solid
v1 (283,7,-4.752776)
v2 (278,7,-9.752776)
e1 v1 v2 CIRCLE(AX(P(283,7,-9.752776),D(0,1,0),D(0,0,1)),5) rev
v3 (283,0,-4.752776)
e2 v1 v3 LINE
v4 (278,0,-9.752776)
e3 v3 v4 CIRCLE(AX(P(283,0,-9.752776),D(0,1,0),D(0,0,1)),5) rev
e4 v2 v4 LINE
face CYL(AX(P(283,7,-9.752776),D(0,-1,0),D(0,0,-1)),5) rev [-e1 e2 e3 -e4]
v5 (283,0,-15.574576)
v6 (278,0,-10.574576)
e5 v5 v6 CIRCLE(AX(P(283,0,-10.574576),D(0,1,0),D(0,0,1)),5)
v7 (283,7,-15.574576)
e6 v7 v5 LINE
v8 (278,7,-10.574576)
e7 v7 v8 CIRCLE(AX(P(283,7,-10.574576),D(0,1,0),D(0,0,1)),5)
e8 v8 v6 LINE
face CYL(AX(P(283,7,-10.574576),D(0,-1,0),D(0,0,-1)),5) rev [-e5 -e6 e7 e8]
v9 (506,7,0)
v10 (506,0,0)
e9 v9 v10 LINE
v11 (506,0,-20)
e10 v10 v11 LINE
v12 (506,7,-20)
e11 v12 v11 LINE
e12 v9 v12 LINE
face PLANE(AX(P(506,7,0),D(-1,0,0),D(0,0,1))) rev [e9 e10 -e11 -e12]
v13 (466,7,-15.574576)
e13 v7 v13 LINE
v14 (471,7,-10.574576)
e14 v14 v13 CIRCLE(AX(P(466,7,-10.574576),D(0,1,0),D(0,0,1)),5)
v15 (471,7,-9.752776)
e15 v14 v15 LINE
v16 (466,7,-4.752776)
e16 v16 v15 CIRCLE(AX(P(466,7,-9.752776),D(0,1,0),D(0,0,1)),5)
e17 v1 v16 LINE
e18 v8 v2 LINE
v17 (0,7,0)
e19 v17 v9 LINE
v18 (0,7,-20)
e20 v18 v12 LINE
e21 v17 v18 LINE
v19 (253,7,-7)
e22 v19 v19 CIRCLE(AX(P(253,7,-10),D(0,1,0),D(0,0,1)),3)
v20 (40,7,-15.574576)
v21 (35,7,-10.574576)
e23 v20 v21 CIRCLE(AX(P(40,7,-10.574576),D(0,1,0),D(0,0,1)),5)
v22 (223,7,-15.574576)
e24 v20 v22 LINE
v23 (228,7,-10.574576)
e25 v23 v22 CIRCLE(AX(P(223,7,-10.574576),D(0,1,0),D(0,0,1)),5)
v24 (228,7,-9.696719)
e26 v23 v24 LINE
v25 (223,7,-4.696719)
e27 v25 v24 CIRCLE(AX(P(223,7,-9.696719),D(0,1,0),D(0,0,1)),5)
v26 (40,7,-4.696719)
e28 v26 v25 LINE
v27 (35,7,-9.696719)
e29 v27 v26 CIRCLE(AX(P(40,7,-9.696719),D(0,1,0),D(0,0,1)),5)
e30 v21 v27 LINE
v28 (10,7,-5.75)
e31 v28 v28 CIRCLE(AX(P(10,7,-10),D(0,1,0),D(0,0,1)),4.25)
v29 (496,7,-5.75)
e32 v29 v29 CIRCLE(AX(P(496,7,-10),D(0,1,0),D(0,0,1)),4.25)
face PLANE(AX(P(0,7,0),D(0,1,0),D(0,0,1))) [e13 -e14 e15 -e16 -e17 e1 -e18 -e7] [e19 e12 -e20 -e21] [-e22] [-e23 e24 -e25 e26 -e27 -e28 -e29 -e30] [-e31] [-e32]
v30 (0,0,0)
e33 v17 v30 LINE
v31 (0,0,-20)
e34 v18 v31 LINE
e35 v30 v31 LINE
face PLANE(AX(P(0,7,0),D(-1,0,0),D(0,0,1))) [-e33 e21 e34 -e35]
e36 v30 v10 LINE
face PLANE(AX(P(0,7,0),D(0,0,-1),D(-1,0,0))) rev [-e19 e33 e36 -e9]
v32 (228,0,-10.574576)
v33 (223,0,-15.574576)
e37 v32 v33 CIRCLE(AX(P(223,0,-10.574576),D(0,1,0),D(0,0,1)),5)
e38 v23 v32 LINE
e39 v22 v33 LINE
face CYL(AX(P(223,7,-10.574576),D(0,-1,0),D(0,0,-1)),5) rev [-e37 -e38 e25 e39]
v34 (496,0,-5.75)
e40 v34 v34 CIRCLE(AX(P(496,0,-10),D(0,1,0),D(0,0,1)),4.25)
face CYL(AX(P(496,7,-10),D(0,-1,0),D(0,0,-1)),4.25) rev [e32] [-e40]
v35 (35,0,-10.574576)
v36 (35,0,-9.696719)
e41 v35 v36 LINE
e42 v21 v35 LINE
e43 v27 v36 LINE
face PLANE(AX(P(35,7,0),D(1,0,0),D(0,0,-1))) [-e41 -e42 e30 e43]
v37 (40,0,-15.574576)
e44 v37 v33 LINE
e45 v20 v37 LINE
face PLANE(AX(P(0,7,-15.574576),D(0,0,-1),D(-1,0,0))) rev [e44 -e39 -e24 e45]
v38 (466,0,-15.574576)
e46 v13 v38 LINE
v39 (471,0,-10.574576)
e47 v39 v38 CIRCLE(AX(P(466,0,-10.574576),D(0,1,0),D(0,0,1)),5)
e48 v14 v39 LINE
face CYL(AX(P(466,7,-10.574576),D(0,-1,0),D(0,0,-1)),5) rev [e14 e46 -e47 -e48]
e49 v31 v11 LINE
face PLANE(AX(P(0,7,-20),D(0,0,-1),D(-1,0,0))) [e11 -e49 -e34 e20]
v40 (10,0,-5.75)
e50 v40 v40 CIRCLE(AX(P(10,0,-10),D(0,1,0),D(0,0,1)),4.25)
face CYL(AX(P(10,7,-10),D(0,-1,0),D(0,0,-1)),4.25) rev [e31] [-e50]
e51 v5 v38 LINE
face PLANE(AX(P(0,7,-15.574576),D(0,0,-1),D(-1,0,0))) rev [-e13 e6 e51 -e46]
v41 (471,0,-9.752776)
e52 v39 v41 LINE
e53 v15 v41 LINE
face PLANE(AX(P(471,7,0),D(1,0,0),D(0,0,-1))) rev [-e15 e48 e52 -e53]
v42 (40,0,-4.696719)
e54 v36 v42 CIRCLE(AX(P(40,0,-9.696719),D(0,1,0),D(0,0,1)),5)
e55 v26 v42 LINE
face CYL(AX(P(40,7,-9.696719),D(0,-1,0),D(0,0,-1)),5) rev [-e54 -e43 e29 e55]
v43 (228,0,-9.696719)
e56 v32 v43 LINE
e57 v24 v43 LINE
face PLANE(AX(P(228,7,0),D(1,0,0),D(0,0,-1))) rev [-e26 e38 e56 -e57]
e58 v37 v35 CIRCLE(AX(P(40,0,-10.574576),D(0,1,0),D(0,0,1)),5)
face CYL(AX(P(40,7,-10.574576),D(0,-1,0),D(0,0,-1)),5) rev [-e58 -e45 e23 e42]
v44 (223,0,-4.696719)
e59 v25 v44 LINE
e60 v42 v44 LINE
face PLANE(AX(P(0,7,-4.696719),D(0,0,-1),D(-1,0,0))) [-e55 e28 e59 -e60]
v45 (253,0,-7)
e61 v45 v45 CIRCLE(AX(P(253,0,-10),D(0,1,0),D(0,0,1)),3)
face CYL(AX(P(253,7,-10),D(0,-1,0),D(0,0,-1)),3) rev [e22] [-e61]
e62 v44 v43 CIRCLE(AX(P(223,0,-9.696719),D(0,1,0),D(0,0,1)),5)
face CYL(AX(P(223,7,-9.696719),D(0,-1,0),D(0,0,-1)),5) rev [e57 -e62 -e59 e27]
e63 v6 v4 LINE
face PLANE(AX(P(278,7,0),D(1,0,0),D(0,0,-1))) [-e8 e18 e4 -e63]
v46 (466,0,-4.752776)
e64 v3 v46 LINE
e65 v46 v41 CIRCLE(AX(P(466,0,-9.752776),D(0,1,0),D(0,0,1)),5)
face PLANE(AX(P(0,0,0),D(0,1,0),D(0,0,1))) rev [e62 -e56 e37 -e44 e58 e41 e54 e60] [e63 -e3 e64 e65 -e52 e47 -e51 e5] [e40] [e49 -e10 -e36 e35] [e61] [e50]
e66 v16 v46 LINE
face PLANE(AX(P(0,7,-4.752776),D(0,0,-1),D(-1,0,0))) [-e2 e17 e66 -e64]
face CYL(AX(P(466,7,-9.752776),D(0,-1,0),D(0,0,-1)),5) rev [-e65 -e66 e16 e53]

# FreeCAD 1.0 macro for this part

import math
import FreeCAD as App
import Part
import Sketcher

V = App.Vector
Q = App.Units.Quantity


def add_polygon(sketch, points):
    """Adds a closed chain of lines whose ends are joined by coincident constraints."""
    first, n = sketch.GeometryCount, len(points)
    for a, b in zip(points, points[1:] + points[:1]):
        sketch.addGeometry(Part.LineSegment(App.Vector(*a, 0), App.Vector(*b, 0)), False)
    for i in range(n):
        sketch.addConstraint(Sketcher.Constraint("Coincident", first + i, 2, first + (i + 1) % n, 1))

doc = App.newDocument("Part")
body = doc.addObject("PartDesign::Body", "Body")

# Sketch on XZ plane
sketch1 = doc.addObject("Sketcher::SketchObject", "Sketch")
body.addObject(sketch1)
sketch1.AttachmentSupport = (doc.XZ_Plane, [""])
sketch1.MapMode = "FlatFace"
add_polygon(sketch1, [(0, -20), (0, 0), (506, 0), (506, -20)])  # lines 0-3
sketch1.addGeometry(Part.Circle(V(10, -10, 0), V(0, 0, 1), 4.2), False)  # 4
sketch1.addGeometry(Part.ArcOfCircle(Part.Circle(V(40, -10.6, 0), V(0, 0, 1), 5), math.radians(180), math.radians(270)), False)  # 5
sketch1.addGeometry(Part.LineSegment(V(40, -15.6, 0), V(223, -15.6, 0)), False)  # 6
sketch1.addGeometry(Part.ArcOfCircle(Part.Circle(V(223, -10.6, 0), V(0, 0, 1), 5), math.radians(-90), math.radians(0)), False)  # 7
sketch1.addGeometry(Part.LineSegment(V(228, -10.6, 0), V(228, -9.7, 0)), False)  # 8
sketch1.addGeometry(Part.ArcOfCircle(Part.Circle(V(223, -9.7, 0), V(0, 0, 1), 5), math.radians(0), math.radians(90)), False)  # 9
sketch1.addGeometry(Part.LineSegment(V(223, -4.7, 0), V(40, -4.7, 0)), False)  # 10
sketch1.addGeometry(Part.ArcOfCircle(Part.Circle(V(40, -9.7, 0), V(0, 0, 1), 5), math.radians(90), math.radians(180)), False)  # 11
sketch1.addGeometry(Part.LineSegment(V(35, -9.7, 0), V(35, -10.6, 0)), False)  # 12
sketch1.addGeometry(Part.Circle(V(253, -10, 0), V(0, 0, 1), 3), False)  # 13
sketch1.addGeometry(Part.Circle(V(496, -10, 0), V(0, 0, 1), 4.2), False)  # 14
sketch1.addGeometry(Part.ArcOfCircle(Part.Circle(V(283, -10.6, 0), V(0, 0, 1), 5), math.radians(180), math.radians(270)), False)  # 15
sketch1.addGeometry(Part.LineSegment(V(283, -15.6, 0), V(466, -15.6, 0)), False)  # 16
sketch1.addGeometry(Part.ArcOfCircle(Part.Circle(V(466, -10.6, 0), V(0, 0, 1), 5), math.radians(-90), math.radians(0)), False)  # 17
sketch1.addGeometry(Part.LineSegment(V(471, -10.6, 0), V(471, -9.8, 0)), False)  # 18
sketch1.addGeometry(Part.ArcOfCircle(Part.Circle(V(466, -9.8, 0), V(0, 0, 1), 5), math.radians(0), math.radians(90)), False)  # 19
sketch1.addGeometry(Part.LineSegment(V(466, -4.8, 0), V(283, -4.8, 0)), False)  # 20
sketch1.addGeometry(Part.ArcOfCircle(Part.Circle(V(283, -9.8, 0), V(0, 0, 1), 5), math.radians(90), math.radians(180)), False)  # 21
sketch1.addGeometry(Part.LineSegment(V(278, -9.8, 0), V(278, -10.6, 0)), False)  # 22
sketch1.addConstraint(Sketcher.Constraint("Tangent", 5, 2, 6, 1))
sketch1.addConstraint(Sketcher.Constraint("Tangent", 6, 2, 7, 1))
sketch1.addConstraint(Sketcher.Constraint("Tangent", 7, 2, 8, 1))
sketch1.addConstraint(Sketcher.Constraint("Tangent", 8, 2, 9, 1))
sketch1.addConstraint(Sketcher.Constraint("Tangent", 9, 2, 10, 1))
sketch1.addConstraint(Sketcher.Constraint("Tangent", 10, 2, 11, 1))
sketch1.addConstraint(Sketcher.Constraint("Tangent", 11, 2, 12, 1))
sketch1.addConstraint(Sketcher.Constraint("Tangent", 12, 2, 5, 1))
sketch1.addConstraint(Sketcher.Constraint("Tangent", 15, 2, 16, 1))
sketch1.addConstraint(Sketcher.Constraint("Tangent", 16, 2, 17, 1))
sketch1.addConstraint(Sketcher.Constraint("Tangent", 17, 2, 18, 1))
sketch1.addConstraint(Sketcher.Constraint("Tangent", 18, 2, 19, 1))
sketch1.addConstraint(Sketcher.Constraint("Tangent", 19, 2, 20, 1))
sketch1.addConstraint(Sketcher.Constraint("Tangent", 20, 2, 21, 1))
sketch1.addConstraint(Sketcher.Constraint("Tangent", 21, 2, 22, 1))
sketch1.addConstraint(Sketcher.Constraint("Tangent", 22, 2, 15, 1))
sketch1.addConstraint(Sketcher.Constraint("Vertical", 0))
sketch1.addConstraint(Sketcher.Constraint("Horizontal", 1))
sketch1.addConstraint(Sketcher.Constraint("Vertical", 2))
sketch1.addConstraint(Sketcher.Constraint("Horizontal", 3))
sketch1.addConstraint(Sketcher.Constraint("Horizontal", 6))
sketch1.addConstraint(Sketcher.Constraint("Vertical", 8))
sketch1.addConstraint(Sketcher.Constraint("Horizontal", 10))
sketch1.addConstraint(Sketcher.Constraint("Vertical", 12))
sketch1.addConstraint(Sketcher.Constraint("Horizontal", 16))
sketch1.addConstraint(Sketcher.Constraint("Vertical", 18))
sketch1.addConstraint(Sketcher.Constraint("Horizontal", 20))
sketch1.addConstraint(Sketcher.Constraint("Vertical", 22))
sketch1.addConstraint(Sketcher.Constraint("Coincident", 0, 2, -1, 1))
sketch1.addConstraint(Sketcher.Constraint("Equal", 5, 7))
sketch1.addConstraint(Sketcher.Constraint("Equal", 7, 9))
sketch1.addConstraint(Sketcher.Constraint("Equal", 9, 11))
sketch1.addConstraint(Sketcher.Constraint("Equal", 4, 14))
sketch1.addConstraint(Sketcher.Constraint("Equal", 11, 15))
sketch1.addConstraint(Sketcher.Constraint("Equal", 15, 17))
sketch1.addConstraint(Sketcher.Constraint("Equal", 17, 19))
sketch1.addConstraint(Sketcher.Constraint("Equal", 19, 21))
sketch1.addConstraint(Sketcher.Constraint("Horizontal", 4, 3, 13, 3))
sketch1.addConstraint(Sketcher.Constraint("Horizontal", 13, 3, 14, 3))
sketch1.addConstraint(Sketcher.Constraint("Horizontal", 7, 3, 15, 3))
sketch1.addConstraint(Sketcher.Constraint("Equal", 10, 16))
sketch1.addConstraint(Sketcher.Constraint("Diameter", 13, Q("6 mm")))
sketch1.addConstraint(Sketcher.Constraint("Radius", 5, Q("5 mm")))
sketch1.addConstraint(Sketcher.Constraint("Diameter", 4, Q("8.5 mm")))
sketch1.addConstraint(Sketcher.Constraint("DistanceX", 1, 1, 1, 2, Q("506 mm")))
sketch1.addConstraint(Sketcher.Constraint("DistanceX", 6, 1, 6, 2, Q("183 mm")))
sketch1.addConstraint(Sketcher.Constraint("DistanceY", 0, 1, 0, 2, Q("20 mm")))
sketch1.addConstraint(Sketcher.Constraint("DistanceX", -1, 1, 4, 3, Q("10 mm")))
sketch1.addConstraint(Sketcher.Constraint("DistanceY", 4, 3, -1, 1, Q("10 mm")))
sketch1.addConstraint(Sketcher.Constraint("DistanceX", -1, 1, 5, 3, Q("40 mm")))
sketch1.addConstraint(Sketcher.Constraint("DistanceX", -1, 1, 13, 3, Q("253 mm")))
sketch1.addConstraint(Sketcher.Constraint("DistanceX", -1, 1, 14, 3, Q("496 mm")))
sketch1.addConstraint(Sketcher.Constraint("DistanceX", -1, 1, 15, 3, Q("283 mm")))
sketch1.addConstraint(Sketcher.Constraint("DistanceY", 18, 1, 18, 2, Q("0.8218 mm")))
sketch1.addConstraint(Sketcher.Constraint("DistanceY", 8, 1, 8, 2, Q("0.877857 mm")))
sketch1.addConstraint(Sketcher.Constraint("DistanceY", 9, 3, -1, 1, Q("9.696719 mm")))
pad1 = doc.addObject("PartDesign::Pad", "Pad")
body.addObject(pad1)
pad1.Profile = sketch1
pad1.Length = 7
pad1.Reversed = True

doc.recompute()
